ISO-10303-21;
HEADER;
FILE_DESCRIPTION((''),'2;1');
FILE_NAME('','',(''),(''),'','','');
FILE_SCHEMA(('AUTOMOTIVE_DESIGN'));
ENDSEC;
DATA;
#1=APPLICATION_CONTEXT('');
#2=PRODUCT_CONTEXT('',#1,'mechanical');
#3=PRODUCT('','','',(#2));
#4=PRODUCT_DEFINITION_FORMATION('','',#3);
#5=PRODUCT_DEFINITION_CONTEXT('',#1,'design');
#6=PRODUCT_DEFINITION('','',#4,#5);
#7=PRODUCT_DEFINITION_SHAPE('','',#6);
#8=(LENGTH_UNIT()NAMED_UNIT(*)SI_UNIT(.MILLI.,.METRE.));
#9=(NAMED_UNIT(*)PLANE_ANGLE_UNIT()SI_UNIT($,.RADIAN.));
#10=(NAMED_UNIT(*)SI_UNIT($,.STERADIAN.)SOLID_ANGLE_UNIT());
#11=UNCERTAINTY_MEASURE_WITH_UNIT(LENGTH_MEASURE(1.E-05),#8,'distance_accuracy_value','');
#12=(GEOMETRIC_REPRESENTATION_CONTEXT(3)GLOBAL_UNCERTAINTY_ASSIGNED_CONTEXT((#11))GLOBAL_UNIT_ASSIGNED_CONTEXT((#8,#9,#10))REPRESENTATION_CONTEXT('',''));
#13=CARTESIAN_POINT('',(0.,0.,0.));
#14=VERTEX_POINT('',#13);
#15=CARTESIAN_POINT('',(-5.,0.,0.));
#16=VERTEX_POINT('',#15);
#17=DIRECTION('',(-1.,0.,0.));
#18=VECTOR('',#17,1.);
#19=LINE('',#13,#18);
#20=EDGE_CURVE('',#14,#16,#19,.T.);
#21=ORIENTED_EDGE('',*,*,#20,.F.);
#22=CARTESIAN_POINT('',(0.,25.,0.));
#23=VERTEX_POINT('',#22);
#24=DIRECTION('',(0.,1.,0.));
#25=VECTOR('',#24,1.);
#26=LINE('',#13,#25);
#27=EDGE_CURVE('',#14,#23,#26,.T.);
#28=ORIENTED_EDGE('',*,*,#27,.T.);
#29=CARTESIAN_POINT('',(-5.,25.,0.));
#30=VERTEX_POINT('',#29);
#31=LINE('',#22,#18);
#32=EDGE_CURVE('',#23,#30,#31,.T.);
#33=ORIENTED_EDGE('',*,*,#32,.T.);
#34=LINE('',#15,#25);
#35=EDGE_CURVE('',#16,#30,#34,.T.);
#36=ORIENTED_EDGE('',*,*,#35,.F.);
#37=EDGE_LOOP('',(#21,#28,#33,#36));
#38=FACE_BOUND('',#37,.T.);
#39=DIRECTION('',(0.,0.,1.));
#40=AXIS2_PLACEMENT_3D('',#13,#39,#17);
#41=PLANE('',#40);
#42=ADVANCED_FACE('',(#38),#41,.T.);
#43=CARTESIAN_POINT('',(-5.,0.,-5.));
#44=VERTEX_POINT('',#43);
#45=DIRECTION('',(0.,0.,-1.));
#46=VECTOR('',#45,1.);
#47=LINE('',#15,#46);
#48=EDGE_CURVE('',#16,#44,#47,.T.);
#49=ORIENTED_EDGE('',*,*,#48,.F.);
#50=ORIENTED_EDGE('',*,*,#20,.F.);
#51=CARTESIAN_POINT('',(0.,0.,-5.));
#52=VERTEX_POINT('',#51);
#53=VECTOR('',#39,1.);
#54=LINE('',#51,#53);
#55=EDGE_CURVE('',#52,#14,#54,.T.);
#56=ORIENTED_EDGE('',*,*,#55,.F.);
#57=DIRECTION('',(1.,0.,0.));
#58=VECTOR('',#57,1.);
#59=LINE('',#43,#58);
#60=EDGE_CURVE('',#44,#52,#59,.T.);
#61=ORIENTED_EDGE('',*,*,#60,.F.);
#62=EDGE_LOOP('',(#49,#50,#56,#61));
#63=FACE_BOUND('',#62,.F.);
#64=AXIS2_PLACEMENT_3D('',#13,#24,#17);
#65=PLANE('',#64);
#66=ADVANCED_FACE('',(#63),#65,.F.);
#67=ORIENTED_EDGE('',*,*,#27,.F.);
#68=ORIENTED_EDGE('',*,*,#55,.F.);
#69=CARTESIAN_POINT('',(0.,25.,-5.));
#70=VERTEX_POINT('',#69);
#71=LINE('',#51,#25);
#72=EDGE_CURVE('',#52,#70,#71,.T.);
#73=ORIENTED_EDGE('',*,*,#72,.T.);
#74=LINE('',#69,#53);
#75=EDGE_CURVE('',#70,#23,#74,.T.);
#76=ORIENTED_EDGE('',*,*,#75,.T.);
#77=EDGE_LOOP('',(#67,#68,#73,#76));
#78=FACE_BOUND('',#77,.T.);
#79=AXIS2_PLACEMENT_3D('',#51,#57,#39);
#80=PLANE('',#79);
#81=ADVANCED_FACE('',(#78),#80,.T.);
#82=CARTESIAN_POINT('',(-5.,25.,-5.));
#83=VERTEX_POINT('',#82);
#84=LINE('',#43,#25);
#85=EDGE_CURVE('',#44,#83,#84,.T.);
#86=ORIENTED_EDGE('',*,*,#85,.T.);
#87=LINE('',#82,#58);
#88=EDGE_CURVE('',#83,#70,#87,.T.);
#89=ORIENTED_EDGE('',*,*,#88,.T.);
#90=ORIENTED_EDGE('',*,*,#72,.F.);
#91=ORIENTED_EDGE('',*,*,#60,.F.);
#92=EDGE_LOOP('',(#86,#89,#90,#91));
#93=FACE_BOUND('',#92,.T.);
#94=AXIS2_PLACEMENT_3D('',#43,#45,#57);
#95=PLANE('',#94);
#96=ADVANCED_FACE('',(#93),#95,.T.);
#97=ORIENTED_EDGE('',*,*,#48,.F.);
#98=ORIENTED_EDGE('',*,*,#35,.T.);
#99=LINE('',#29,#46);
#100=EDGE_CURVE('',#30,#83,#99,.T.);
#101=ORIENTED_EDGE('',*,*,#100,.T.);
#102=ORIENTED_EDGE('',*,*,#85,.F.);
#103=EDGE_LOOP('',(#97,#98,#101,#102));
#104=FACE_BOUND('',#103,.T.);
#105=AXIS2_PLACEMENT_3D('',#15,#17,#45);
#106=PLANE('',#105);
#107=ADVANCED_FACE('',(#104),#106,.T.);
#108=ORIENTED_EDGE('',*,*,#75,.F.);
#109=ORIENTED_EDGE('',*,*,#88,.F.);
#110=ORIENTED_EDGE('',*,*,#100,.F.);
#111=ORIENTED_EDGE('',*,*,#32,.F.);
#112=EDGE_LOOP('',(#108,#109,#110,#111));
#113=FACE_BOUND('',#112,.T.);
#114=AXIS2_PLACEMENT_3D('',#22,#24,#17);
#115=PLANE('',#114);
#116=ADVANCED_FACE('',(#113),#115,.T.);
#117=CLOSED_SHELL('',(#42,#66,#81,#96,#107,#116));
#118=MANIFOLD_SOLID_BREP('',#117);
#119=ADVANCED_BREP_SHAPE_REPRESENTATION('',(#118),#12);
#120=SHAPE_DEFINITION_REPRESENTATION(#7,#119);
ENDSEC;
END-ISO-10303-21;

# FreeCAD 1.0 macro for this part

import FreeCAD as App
import Part
import Sketcher

doc = App.newDocument("Part")
params = doc.addObject("Spreadsheet::Sheet", "Params")
for row, (alias, value) in enumerate([
    ("sketch1_width", "5 mm"),
    ("pad1_length", "25 mm"),
], start=1):
    params.set(f"A{row}", alias)
    params.set(f"B{row}", "=" + value)
    params.setAlias(f"B{row}", alias)

body = doc.addObject("PartDesign::Body", "Body")

# Sketch on XZ plane
sketch1 = body.newObject("Sketcher::SketchObject", "Sketch")
sketch1.AttachmentSupport = (doc.getObject("XZ_Plane"), [""])
sketch1.MapMode = "FlatFace"
sketch1.addGeometry(Part.LineSegment(App.Vector(-5, 0, 0), App.Vector(0, 0, 0)), False)
sketch1.addGeometry(Part.LineSegment(App.Vector(0, 0, 0), App.Vector(0, -5, 0)), False)
sketch1.addGeometry(Part.LineSegment(App.Vector(0, -5, 0), App.Vector(-5, -5, 0)), False)
sketch1.addGeometry(Part.LineSegment(App.Vector(-5, -5, 0), App.Vector(-5, 0, 0)), False)
sketch1.addConstraint(Sketcher.Constraint("Coincident", 0, 2, 1, 1))
sketch1.addConstraint(Sketcher.Constraint("Coincident", 1, 2, 2, 1))
sketch1.addConstraint(Sketcher.Constraint("Coincident", 2, 2, 3, 1))
sketch1.addConstraint(Sketcher.Constraint("Coincident", 3, 2, 0, 1))
sketch1.addConstraint(Sketcher.Constraint("Horizontal", 0))
sketch1.addConstraint(Sketcher.Constraint("Vertical", 1))
sketch1.addConstraint(Sketcher.Constraint("Horizontal", 2))
sketch1.addConstraint(Sketcher.Constraint("Vertical", 3))
sketch1.addConstraint(Sketcher.Constraint("Coincident", 0, 2, -1, 1))
sketch1.addConstraint(Sketcher.Constraint("Equal", 2, 1))
sketch1.addConstraint(Sketcher.Constraint("DistanceX", 0, 1, 0, 2, 5.0))
sketch1.setExpression("Constraints[10]", "Params.sketch1_width")
pad1 = body.newObject("PartDesign::Pad", "Pad")
pad1.Profile = sketch1
pad1.setExpression("Length", "Params.pad1_length")
pad1.Reversed = True

doc.recompute()
